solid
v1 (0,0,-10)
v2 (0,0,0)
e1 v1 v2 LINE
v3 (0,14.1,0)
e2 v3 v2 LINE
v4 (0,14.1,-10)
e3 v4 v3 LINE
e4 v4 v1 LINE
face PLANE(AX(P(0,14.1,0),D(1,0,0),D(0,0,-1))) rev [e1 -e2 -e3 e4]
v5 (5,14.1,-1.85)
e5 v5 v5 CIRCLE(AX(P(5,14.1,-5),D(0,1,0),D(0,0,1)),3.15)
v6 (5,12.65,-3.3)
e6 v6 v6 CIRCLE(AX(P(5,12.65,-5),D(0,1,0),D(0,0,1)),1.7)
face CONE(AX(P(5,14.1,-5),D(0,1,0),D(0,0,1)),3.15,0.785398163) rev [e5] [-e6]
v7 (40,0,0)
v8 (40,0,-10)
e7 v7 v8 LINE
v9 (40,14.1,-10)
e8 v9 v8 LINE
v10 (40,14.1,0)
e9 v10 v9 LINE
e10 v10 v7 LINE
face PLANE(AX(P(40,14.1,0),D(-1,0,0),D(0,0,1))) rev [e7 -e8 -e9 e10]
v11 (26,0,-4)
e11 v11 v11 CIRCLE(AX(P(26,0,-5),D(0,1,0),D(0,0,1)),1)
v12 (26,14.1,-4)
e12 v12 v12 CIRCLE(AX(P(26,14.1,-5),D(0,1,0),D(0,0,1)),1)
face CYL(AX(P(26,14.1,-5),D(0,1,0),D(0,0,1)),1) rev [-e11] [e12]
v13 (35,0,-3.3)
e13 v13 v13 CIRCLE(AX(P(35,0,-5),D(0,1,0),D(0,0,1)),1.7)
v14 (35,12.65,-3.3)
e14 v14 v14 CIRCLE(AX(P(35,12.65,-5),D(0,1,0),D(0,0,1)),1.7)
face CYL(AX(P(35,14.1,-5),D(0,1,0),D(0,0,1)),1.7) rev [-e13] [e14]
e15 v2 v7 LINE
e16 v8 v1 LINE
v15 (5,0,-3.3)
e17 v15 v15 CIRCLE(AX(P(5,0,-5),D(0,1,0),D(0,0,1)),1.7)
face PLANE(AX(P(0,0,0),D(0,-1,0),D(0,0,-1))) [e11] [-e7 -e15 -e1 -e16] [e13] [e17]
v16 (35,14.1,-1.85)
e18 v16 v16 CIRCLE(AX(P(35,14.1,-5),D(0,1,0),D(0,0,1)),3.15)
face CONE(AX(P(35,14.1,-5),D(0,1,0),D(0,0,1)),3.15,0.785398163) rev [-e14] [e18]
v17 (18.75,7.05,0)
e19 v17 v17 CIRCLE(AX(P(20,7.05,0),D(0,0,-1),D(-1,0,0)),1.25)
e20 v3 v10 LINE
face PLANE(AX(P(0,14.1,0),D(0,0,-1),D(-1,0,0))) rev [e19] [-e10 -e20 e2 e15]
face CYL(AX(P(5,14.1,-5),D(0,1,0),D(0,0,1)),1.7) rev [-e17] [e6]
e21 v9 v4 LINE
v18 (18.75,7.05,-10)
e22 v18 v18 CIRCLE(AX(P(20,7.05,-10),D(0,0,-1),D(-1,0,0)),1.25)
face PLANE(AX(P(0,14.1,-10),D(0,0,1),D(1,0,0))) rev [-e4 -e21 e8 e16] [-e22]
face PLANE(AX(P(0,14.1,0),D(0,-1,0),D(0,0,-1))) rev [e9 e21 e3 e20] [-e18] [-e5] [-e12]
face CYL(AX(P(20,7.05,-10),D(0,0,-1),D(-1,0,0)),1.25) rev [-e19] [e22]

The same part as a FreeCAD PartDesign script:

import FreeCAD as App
import Part
import Sketcher
from FreeCAD import Vector
Q = App.Units.Quantity

doc = App.newDocument("Part")
body = doc.addObject("PartDesign::Body", "Body")

# Sketch on XZ plane
sketch1 = doc.addObject("Sketcher::SketchObject", "Sketch")
body.addObject(sketch1)
sketch1.AttachmentSupport = (doc.XZ_Plane, [""])
sketch1.MapMode = "FlatFace"
sketch1.addGeometry([
    Part.LineSegment(Vector(0, -10, 0), Vector(0, 0, 0)),
    Part.LineSegment(Vector(0, 0, 0), Vector(40, 0, 0)),
    Part.LineSegment(Vector(40, 0, 0), Vector(40, -10, 0)),
    Part.LineSegment(Vector(40, -10, 0), Vector(0, -10, 0)),
], False)
sketch1.addConstraint([
    Sketcher.Constraint("Coincident", 0, 2, 1, 1),
    Sketcher.Constraint("Coincident", 1, 2, 2, 1),
    Sketcher.Constraint("Coincident", 2, 2, 3, 1),
    Sketcher.Constraint("Coincident", 3, 2, 0, 1),
    Sketcher.Constraint("Vertical", 0),
    Sketcher.Constraint("Horizontal", 1),
    Sketcher.Constraint("Vertical", 2),
    Sketcher.Constraint("Horizontal", 3),
    Sketcher.Constraint("Coincident", 0, 2, -1, 1),
    Sketcher.Constraint("DistanceX", 1, 1, 1, 2, Q("40 mm")),
    Sketcher.Constraint("DistanceY", 0, 1, 0, 2, Q("10 mm")),
])
pad1 = doc.addObject("PartDesign::Pad", "Pad")
body.addObject(pad1)
pad1.Profile = sketch1
pad1.Length = 14.1
pad1.Reversed = True

# Sketch on XZ plane
sketch2 = doc.addObject("Sketcher::SketchObject", "Sketch001")
body.addObject(sketch2)
sketch2.AttachmentSupport = (doc.XZ_Plane, [""])
sketch2.MapMode = "FlatFace"
sketch2.AttachmentOffset = App.Placement(Vector(0, 0, -14.1), App.Rotation())
sketch2.addGeometry([
    Part.Circle(Vector(5, -5, 0), Vector(0, 0, 1), 1.7),
    Part.Circle(Vector(35, -5, 0), Vector(0, 0, 1), 1.7),
], False)
sketch2.addConstraint([
    Sketcher.Constraint("Equal", 0, 1),
    Sketcher.Constraint("Horizontal", 0, 3, 1, 3),
    Sketcher.Constraint("Diameter", 0, Q("3.4 mm")),
    Sketcher.Constraint("DistanceX", -1, 1, 0, 3, Q("5 mm")),
    Sketcher.Constraint("DistanceY", 0, 3, -1, 1, Q("5 mm")),
    Sketcher.Constraint("DistanceX", -1, 1, 1, 3, Q("35 mm")),
])
doc.recompute()
hole = doc.addObject("PartDesign::Hole", "Hole")
body.addObject(hole)
hole.Profile = sketch2
hole.ThreadType = "None"
hole.Diameter = 3.4
hole.DepthType = "ThroughAll"
hole.HoleCutType = "Countersink"
hole.HoleCutDiameter = 6.3
hole.HoleCutCountersinkAngle = 90
hole.Reversed = True

# Sketch on XY plane
sketch3 = doc.addObject("Sketcher::SketchObject", "Sketch002")
body.addObject(sketch3)
sketch3.AttachmentSupport = (doc.XY_Plane, [""])
sketch3.MapMode = "FlatFace"
sketch3.AttachmentOffset = App.Placement(Vector(0, 0, -10), App.Rotation())
sketch3.addGeometry(Part.Circle(Vector(20, 7.05, 0), Vector(0, 0, 1), 1.25), False)
sketch3.addConstraint([
    Sketcher.Constraint("Diameter", 0, Q("2.5 mm")),
    Sketcher.Constraint("DistanceX", -1, 1, 0, 3, Q("20 mm")),
    Sketcher.Constraint("DistanceY", -1, 1, 0, 3, Q("7.05 mm")),
])
doc.recompute()
hole2 = doc.addObject("PartDesign::Hole", "Hole001")
body.addObject(hole2)
hole2.Profile = sketch3
hole2.ThreadType = "None"
hole2.Diameter = 2.5
hole2.DepthType = "ThroughAll"
hole2.Reversed = True

# Sketch on XZ plane
sketch4 = doc.addObject("Sketcher::SketchObject", "Sketch003")
body.addObject(sketch4)
sketch4.AttachmentSupport = (doc.XZ_Plane, [""])
sketch4.MapMode = "FlatFace"
sketch4.AttachmentOffset = App.Placement(Vector(0, 0, -14.1), App.Rotation())
sketch4.addGeometry(Part.Circle(Vector(26, -5, 0), Vector(0, 0, 1), 1), False)
sketch4.addConstraint([
    Sketcher.Constraint("Diameter", 0, Q("2 mm")),
    Sketcher.Constraint("DistanceX", -1, 1, 0, 3, Q("26 mm")),
    Sketcher.Constraint("DistanceY", 0, 3, -1, 1, Q("5 mm")),
])
doc.recompute()
hole3 = doc.addObject("PartDesign::Hole", "Hole002")
body.addObject(hole3)
hole3.Profile = sketch4
hole3.ThreadType = "None"
hole3.Diameter = 2
hole3.DepthType = "ThroughAll"
hole3.Reversed = True

doc.recompute()
